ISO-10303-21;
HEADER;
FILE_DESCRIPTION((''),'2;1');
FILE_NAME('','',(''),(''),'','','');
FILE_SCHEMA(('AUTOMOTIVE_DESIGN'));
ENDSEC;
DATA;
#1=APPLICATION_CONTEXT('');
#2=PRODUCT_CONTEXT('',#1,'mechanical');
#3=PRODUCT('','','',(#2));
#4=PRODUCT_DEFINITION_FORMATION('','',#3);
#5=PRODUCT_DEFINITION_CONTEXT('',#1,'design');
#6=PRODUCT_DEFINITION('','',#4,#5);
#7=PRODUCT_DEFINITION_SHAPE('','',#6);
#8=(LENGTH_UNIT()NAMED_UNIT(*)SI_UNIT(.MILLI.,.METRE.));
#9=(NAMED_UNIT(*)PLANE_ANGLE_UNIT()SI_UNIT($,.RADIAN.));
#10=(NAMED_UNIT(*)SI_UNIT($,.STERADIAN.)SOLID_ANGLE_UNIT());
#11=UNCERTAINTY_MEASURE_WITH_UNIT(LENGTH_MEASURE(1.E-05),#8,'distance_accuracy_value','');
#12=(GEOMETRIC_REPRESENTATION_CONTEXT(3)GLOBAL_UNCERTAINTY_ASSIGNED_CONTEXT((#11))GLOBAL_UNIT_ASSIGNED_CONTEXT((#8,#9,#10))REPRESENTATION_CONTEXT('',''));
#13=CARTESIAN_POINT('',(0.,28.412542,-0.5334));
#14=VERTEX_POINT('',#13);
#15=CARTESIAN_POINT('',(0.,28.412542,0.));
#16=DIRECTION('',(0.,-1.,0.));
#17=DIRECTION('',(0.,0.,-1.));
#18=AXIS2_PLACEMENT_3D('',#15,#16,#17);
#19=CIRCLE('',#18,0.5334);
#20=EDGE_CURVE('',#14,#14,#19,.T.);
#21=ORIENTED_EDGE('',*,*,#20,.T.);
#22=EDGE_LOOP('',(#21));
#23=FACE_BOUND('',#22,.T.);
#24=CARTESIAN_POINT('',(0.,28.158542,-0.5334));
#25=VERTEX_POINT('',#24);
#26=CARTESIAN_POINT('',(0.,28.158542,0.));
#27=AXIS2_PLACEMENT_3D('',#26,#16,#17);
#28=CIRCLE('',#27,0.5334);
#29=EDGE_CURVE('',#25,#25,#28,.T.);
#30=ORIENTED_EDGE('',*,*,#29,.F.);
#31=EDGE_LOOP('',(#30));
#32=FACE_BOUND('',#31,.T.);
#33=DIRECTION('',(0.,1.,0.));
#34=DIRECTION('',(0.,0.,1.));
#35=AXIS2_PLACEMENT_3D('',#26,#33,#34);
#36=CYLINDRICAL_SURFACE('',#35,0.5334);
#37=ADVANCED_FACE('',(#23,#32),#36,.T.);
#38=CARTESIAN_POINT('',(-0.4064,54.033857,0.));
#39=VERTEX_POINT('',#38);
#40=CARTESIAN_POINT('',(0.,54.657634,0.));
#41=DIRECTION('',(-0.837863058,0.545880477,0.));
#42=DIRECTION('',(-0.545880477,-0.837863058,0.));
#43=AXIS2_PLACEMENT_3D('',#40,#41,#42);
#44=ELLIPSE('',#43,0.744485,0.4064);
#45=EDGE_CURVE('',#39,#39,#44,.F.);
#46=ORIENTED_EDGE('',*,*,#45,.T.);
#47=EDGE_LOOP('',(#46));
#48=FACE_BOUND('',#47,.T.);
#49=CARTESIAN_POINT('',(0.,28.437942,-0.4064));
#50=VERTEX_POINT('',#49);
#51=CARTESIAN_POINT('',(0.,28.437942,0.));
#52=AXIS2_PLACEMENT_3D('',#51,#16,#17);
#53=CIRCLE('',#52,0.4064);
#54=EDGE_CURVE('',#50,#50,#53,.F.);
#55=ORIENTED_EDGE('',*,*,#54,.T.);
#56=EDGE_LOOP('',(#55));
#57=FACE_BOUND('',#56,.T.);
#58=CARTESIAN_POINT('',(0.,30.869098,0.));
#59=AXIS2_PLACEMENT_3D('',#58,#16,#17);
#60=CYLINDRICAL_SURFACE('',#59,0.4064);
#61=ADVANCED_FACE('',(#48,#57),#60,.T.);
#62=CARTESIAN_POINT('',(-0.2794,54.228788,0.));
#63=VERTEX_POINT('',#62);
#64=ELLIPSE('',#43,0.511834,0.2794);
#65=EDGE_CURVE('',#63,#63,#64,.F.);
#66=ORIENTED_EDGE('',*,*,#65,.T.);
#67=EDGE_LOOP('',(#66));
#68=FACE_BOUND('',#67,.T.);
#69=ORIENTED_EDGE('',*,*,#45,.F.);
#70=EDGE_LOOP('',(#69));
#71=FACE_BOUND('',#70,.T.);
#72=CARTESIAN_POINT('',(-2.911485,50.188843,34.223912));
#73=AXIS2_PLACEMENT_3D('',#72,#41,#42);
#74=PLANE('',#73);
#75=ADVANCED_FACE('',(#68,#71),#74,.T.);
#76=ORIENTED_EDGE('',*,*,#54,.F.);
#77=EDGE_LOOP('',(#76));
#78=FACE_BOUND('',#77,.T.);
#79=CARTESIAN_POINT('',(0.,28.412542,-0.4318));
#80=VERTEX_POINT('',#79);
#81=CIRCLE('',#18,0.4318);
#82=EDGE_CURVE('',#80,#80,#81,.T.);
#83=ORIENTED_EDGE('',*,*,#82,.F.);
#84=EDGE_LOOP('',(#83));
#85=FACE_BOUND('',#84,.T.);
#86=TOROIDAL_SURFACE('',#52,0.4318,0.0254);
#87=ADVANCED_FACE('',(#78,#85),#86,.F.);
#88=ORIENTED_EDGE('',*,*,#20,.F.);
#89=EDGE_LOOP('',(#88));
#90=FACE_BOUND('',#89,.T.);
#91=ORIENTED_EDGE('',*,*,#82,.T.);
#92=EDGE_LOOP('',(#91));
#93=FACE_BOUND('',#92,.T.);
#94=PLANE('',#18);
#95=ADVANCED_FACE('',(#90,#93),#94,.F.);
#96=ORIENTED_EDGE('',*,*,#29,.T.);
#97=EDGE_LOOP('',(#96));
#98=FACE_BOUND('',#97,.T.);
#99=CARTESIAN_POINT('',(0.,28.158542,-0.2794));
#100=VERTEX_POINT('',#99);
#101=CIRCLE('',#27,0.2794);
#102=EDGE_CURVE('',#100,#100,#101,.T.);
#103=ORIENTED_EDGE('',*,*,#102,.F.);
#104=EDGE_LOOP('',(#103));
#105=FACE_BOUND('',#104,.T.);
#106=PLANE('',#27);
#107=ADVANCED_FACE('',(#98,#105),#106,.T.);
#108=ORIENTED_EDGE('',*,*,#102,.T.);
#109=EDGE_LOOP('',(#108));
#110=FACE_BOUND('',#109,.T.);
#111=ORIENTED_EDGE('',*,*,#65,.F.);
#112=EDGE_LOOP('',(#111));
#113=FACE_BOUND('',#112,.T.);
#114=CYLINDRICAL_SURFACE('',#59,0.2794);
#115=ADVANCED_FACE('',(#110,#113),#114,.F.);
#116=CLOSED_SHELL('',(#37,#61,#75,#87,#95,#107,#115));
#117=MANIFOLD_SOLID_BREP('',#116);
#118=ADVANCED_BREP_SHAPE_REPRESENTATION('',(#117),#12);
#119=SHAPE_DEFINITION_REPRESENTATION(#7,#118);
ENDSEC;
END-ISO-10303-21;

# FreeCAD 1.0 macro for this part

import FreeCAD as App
import Part
import Sketcher
Q = App.Units.Quantity


def edges_at(feature, points):
    """Names of the edges that pass closest to the given points."""
    edges = feature.Shape.Edges
    near = lambda p: min(range(len(edges)), key=lambda i: edges[i].distToShape(Part.Vertex(*p))[0])
    return sorted({f"Edge{near(p) + 1}" for p in points})

doc = App.newDocument("Part")
body = doc.addObject("PartDesign::Body", "Body")

# Sketch on XY plane
sketch1 = body.newObject("Sketcher::SketchObject", "Sketch")
sketch1.AttachmentSupport = (doc.getObject("XY_Plane"), [""])
sketch1.MapMode = "FlatFace"
sketch1.addGeometry(Part.LineSegment(App.Vector(-0.41, 55.49, 0), App.Vector(-0.41, 28.41, 0)), False)
sketch1.addGeometry(Part.LineSegment(App.Vector(-0.41, 28.41, 0), App.Vector(-0.28, 28.41, 0)), False)
sketch1.addGeometry(Part.LineSegment(App.Vector(-0.28, 28.41, 0), App.Vector(-0.28, 55.49, 0)), False)
sketch1.addGeometry(Part.LineSegment(App.Vector(-0.28, 55.49, 0), App.Vector(-0.41, 55.49, 0)), False)
sketch1.addConstraint(Sketcher.Constraint("Coincident", 0, 2, 1, 1))
sketch1.addConstraint(Sketcher.Constraint("Coincident", 1, 2, 2, 1))
sketch1.addConstraint(Sketcher.Constraint("Coincident", 2, 2, 3, 1))
sketch1.addConstraint(Sketcher.Constraint("Coincident", 3, 2, 0, 1))
sketch1.addConstraint(Sketcher.Constraint("Vertical", 0))
sketch1.addConstraint(Sketcher.Constraint("Horizontal", 1))
sketch1.addConstraint(Sketcher.Constraint("Vertical", 2))
sketch1.addConstraint(Sketcher.Constraint("Horizontal", 3))
sketch1.addConstraint(Sketcher.Constraint("DistanceX", 1, 1, 1, 2, Q("0.005 in")))
sketch1.addConstraint(Sketcher.Constraint("DistanceX", 0, 2, -1, 1, Q("0.016 in")))
sketch1.addConstraint(Sketcher.Constraint("DistanceY", 0, 2, 0, 1, 27.07534))
sketch1.addConstraint(Sketcher.Constraint("DistanceY", -1, 1, 0, 2, 28.412542))
revolution = body.newObject("PartDesign::Revolution", "Revolution")
revolution.Profile = sketch1
revolution.ReferenceAxis = (sketch1, ["V_Axis"])
revolution.Angle = 360

# Sketch on XY plane
sketch2 = body.newObject("Sketcher::SketchObject", "Sketch001")
sketch2.AttachmentSupport = (doc.getObject("XY_Plane"), [""])
sketch2.MapMode = "FlatFace"
sketch2.addGeometry(Part.LineSegment(App.Vector(-40, -7, 0), App.Vector(-3, 50, 0)), False)
sketch2.addGeometry(Part.LineSegment(App.Vector(-3, 50, 0), App.Vector(2, 57, 0)), False)
sketch2.addGeometry(Part.LineSegment(App.Vector(2, 57, 0), App.Vector(39, 114, 0)), False)
sketch2.addGeometry(Part.LineSegment(App.Vector(39, 114, 0), App.Vector(-75, 188, 0)), False)
sketch2.addGeometry(Part.LineSegment(App.Vector(-75, 188, 0), App.Vector(-153, 67, 0)), False)
sketch2.addGeometry(Part.LineSegment(App.Vector(-153, 67, 0), App.Vector(-40, -7, 0)), False)
sketch2.addConstraint(Sketcher.Constraint("Coincident", 0, 2, 1, 1))
sketch2.addConstraint(Sketcher.Constraint("Coincident", 1, 2, 2, 1))
sketch2.addConstraint(Sketcher.Constraint("Coincident", 2, 2, 3, 1))
sketch2.addConstraint(Sketcher.Constraint("Coincident", 3, 2, 4, 1))
sketch2.addConstraint(Sketcher.Constraint("Coincident", 4, 2, 5, 1))
sketch2.addConstraint(Sketcher.Constraint("Coincident", 5, 2, 0, 1))
sketch2.addConstraint(Sketcher.Constraint("Parallel", 0, 1))
sketch2.addConstraint(Sketcher.Constraint("Parallel", 1, 2))
sketch2.addConstraint(Sketcher.Constraint("Perpendicular", 2, 3))
sketch2.addConstraint(Sketcher.Constraint("Perpendicular", 3, 4))
sketch2.addConstraint(Sketcher.Constraint("Perpendicular", 4, 5))
sketch2.addConstraint(Sketcher.Constraint("Equal", 0, 2))
sketch2.addConstraint(Sketcher.Constraint("DistanceY", 5, 2, -1, 1, 6.5121))
sketch2.addConstraint(Sketcher.Constraint("Distance", 0, 67.673282))
sketch2.addConstraint(Sketcher.Constraint("Distance", 4, 143.686308))
sketch2.addConstraint(Sketcher.Constraint("DistanceX", -1, 1, 1, 2, 1.641019))
sketch2.addConstraint(Sketcher.Constraint("DistanceY", -1, 1, 2, 2, 113.87735))
sketch2.addConstraint(Sketcher.Constraint("DistanceY", 1, 2, 3, 2, 130.58399))
pocket1 = body.newObject("PartDesign::Pocket", "Pocket")
pocket1.Profile = sketch2
pocket1.Type = "ThroughAll"
pocket1.Midplane = True

# Sketch on XZ plane
sketch3 = body.newObject("Sketcher::SketchObject", "Sketch002")
sketch3.AttachmentSupport = (doc.getObject("XZ_Plane"), [""])
sketch3.MapMode = "FlatFace"
sketch3.AttachmentOffset = App.Placement(App.Vector(0, 0, -28.158542), App.Rotation())
sketch3.addGeometry(Part.Circle(App.Vector(0, 0, 0), App.Vector(0, 0, 1), 0.53), False)
sketch3.addGeometry(Part.Circle(App.Vector(0, 0, 0), App.Vector(0, 0, 1), 0.28), False)
sketch3.addConstraint(Sketcher.Constraint("Coincident", 0, 3, -1, 1))
sketch3.addConstraint(Sketcher.Constraint("Coincident", 1, 3, -1, 1))
sketch3.addConstraint(Sketcher.Constraint("Diameter", 0, Q("0.042 in")))
sketch3.addConstraint(Sketcher.Constraint("Diameter", 1, Q("0.022 in")))
pad1 = body.newObject("PartDesign::Pad", "Pad")
pad1.Profile = sketch3
pad1.Length = Q("0.01 in")
pad1.Reversed = True
doc.recompute()

fillet = body.newObject("PartDesign::Fillet", "Fillet")
fillet.Base = (pad1, edges_at(pad1, [(0, 28.413, 0.406)]))
fillet.Radius = Q("0.001 in")

doc.recompute()
